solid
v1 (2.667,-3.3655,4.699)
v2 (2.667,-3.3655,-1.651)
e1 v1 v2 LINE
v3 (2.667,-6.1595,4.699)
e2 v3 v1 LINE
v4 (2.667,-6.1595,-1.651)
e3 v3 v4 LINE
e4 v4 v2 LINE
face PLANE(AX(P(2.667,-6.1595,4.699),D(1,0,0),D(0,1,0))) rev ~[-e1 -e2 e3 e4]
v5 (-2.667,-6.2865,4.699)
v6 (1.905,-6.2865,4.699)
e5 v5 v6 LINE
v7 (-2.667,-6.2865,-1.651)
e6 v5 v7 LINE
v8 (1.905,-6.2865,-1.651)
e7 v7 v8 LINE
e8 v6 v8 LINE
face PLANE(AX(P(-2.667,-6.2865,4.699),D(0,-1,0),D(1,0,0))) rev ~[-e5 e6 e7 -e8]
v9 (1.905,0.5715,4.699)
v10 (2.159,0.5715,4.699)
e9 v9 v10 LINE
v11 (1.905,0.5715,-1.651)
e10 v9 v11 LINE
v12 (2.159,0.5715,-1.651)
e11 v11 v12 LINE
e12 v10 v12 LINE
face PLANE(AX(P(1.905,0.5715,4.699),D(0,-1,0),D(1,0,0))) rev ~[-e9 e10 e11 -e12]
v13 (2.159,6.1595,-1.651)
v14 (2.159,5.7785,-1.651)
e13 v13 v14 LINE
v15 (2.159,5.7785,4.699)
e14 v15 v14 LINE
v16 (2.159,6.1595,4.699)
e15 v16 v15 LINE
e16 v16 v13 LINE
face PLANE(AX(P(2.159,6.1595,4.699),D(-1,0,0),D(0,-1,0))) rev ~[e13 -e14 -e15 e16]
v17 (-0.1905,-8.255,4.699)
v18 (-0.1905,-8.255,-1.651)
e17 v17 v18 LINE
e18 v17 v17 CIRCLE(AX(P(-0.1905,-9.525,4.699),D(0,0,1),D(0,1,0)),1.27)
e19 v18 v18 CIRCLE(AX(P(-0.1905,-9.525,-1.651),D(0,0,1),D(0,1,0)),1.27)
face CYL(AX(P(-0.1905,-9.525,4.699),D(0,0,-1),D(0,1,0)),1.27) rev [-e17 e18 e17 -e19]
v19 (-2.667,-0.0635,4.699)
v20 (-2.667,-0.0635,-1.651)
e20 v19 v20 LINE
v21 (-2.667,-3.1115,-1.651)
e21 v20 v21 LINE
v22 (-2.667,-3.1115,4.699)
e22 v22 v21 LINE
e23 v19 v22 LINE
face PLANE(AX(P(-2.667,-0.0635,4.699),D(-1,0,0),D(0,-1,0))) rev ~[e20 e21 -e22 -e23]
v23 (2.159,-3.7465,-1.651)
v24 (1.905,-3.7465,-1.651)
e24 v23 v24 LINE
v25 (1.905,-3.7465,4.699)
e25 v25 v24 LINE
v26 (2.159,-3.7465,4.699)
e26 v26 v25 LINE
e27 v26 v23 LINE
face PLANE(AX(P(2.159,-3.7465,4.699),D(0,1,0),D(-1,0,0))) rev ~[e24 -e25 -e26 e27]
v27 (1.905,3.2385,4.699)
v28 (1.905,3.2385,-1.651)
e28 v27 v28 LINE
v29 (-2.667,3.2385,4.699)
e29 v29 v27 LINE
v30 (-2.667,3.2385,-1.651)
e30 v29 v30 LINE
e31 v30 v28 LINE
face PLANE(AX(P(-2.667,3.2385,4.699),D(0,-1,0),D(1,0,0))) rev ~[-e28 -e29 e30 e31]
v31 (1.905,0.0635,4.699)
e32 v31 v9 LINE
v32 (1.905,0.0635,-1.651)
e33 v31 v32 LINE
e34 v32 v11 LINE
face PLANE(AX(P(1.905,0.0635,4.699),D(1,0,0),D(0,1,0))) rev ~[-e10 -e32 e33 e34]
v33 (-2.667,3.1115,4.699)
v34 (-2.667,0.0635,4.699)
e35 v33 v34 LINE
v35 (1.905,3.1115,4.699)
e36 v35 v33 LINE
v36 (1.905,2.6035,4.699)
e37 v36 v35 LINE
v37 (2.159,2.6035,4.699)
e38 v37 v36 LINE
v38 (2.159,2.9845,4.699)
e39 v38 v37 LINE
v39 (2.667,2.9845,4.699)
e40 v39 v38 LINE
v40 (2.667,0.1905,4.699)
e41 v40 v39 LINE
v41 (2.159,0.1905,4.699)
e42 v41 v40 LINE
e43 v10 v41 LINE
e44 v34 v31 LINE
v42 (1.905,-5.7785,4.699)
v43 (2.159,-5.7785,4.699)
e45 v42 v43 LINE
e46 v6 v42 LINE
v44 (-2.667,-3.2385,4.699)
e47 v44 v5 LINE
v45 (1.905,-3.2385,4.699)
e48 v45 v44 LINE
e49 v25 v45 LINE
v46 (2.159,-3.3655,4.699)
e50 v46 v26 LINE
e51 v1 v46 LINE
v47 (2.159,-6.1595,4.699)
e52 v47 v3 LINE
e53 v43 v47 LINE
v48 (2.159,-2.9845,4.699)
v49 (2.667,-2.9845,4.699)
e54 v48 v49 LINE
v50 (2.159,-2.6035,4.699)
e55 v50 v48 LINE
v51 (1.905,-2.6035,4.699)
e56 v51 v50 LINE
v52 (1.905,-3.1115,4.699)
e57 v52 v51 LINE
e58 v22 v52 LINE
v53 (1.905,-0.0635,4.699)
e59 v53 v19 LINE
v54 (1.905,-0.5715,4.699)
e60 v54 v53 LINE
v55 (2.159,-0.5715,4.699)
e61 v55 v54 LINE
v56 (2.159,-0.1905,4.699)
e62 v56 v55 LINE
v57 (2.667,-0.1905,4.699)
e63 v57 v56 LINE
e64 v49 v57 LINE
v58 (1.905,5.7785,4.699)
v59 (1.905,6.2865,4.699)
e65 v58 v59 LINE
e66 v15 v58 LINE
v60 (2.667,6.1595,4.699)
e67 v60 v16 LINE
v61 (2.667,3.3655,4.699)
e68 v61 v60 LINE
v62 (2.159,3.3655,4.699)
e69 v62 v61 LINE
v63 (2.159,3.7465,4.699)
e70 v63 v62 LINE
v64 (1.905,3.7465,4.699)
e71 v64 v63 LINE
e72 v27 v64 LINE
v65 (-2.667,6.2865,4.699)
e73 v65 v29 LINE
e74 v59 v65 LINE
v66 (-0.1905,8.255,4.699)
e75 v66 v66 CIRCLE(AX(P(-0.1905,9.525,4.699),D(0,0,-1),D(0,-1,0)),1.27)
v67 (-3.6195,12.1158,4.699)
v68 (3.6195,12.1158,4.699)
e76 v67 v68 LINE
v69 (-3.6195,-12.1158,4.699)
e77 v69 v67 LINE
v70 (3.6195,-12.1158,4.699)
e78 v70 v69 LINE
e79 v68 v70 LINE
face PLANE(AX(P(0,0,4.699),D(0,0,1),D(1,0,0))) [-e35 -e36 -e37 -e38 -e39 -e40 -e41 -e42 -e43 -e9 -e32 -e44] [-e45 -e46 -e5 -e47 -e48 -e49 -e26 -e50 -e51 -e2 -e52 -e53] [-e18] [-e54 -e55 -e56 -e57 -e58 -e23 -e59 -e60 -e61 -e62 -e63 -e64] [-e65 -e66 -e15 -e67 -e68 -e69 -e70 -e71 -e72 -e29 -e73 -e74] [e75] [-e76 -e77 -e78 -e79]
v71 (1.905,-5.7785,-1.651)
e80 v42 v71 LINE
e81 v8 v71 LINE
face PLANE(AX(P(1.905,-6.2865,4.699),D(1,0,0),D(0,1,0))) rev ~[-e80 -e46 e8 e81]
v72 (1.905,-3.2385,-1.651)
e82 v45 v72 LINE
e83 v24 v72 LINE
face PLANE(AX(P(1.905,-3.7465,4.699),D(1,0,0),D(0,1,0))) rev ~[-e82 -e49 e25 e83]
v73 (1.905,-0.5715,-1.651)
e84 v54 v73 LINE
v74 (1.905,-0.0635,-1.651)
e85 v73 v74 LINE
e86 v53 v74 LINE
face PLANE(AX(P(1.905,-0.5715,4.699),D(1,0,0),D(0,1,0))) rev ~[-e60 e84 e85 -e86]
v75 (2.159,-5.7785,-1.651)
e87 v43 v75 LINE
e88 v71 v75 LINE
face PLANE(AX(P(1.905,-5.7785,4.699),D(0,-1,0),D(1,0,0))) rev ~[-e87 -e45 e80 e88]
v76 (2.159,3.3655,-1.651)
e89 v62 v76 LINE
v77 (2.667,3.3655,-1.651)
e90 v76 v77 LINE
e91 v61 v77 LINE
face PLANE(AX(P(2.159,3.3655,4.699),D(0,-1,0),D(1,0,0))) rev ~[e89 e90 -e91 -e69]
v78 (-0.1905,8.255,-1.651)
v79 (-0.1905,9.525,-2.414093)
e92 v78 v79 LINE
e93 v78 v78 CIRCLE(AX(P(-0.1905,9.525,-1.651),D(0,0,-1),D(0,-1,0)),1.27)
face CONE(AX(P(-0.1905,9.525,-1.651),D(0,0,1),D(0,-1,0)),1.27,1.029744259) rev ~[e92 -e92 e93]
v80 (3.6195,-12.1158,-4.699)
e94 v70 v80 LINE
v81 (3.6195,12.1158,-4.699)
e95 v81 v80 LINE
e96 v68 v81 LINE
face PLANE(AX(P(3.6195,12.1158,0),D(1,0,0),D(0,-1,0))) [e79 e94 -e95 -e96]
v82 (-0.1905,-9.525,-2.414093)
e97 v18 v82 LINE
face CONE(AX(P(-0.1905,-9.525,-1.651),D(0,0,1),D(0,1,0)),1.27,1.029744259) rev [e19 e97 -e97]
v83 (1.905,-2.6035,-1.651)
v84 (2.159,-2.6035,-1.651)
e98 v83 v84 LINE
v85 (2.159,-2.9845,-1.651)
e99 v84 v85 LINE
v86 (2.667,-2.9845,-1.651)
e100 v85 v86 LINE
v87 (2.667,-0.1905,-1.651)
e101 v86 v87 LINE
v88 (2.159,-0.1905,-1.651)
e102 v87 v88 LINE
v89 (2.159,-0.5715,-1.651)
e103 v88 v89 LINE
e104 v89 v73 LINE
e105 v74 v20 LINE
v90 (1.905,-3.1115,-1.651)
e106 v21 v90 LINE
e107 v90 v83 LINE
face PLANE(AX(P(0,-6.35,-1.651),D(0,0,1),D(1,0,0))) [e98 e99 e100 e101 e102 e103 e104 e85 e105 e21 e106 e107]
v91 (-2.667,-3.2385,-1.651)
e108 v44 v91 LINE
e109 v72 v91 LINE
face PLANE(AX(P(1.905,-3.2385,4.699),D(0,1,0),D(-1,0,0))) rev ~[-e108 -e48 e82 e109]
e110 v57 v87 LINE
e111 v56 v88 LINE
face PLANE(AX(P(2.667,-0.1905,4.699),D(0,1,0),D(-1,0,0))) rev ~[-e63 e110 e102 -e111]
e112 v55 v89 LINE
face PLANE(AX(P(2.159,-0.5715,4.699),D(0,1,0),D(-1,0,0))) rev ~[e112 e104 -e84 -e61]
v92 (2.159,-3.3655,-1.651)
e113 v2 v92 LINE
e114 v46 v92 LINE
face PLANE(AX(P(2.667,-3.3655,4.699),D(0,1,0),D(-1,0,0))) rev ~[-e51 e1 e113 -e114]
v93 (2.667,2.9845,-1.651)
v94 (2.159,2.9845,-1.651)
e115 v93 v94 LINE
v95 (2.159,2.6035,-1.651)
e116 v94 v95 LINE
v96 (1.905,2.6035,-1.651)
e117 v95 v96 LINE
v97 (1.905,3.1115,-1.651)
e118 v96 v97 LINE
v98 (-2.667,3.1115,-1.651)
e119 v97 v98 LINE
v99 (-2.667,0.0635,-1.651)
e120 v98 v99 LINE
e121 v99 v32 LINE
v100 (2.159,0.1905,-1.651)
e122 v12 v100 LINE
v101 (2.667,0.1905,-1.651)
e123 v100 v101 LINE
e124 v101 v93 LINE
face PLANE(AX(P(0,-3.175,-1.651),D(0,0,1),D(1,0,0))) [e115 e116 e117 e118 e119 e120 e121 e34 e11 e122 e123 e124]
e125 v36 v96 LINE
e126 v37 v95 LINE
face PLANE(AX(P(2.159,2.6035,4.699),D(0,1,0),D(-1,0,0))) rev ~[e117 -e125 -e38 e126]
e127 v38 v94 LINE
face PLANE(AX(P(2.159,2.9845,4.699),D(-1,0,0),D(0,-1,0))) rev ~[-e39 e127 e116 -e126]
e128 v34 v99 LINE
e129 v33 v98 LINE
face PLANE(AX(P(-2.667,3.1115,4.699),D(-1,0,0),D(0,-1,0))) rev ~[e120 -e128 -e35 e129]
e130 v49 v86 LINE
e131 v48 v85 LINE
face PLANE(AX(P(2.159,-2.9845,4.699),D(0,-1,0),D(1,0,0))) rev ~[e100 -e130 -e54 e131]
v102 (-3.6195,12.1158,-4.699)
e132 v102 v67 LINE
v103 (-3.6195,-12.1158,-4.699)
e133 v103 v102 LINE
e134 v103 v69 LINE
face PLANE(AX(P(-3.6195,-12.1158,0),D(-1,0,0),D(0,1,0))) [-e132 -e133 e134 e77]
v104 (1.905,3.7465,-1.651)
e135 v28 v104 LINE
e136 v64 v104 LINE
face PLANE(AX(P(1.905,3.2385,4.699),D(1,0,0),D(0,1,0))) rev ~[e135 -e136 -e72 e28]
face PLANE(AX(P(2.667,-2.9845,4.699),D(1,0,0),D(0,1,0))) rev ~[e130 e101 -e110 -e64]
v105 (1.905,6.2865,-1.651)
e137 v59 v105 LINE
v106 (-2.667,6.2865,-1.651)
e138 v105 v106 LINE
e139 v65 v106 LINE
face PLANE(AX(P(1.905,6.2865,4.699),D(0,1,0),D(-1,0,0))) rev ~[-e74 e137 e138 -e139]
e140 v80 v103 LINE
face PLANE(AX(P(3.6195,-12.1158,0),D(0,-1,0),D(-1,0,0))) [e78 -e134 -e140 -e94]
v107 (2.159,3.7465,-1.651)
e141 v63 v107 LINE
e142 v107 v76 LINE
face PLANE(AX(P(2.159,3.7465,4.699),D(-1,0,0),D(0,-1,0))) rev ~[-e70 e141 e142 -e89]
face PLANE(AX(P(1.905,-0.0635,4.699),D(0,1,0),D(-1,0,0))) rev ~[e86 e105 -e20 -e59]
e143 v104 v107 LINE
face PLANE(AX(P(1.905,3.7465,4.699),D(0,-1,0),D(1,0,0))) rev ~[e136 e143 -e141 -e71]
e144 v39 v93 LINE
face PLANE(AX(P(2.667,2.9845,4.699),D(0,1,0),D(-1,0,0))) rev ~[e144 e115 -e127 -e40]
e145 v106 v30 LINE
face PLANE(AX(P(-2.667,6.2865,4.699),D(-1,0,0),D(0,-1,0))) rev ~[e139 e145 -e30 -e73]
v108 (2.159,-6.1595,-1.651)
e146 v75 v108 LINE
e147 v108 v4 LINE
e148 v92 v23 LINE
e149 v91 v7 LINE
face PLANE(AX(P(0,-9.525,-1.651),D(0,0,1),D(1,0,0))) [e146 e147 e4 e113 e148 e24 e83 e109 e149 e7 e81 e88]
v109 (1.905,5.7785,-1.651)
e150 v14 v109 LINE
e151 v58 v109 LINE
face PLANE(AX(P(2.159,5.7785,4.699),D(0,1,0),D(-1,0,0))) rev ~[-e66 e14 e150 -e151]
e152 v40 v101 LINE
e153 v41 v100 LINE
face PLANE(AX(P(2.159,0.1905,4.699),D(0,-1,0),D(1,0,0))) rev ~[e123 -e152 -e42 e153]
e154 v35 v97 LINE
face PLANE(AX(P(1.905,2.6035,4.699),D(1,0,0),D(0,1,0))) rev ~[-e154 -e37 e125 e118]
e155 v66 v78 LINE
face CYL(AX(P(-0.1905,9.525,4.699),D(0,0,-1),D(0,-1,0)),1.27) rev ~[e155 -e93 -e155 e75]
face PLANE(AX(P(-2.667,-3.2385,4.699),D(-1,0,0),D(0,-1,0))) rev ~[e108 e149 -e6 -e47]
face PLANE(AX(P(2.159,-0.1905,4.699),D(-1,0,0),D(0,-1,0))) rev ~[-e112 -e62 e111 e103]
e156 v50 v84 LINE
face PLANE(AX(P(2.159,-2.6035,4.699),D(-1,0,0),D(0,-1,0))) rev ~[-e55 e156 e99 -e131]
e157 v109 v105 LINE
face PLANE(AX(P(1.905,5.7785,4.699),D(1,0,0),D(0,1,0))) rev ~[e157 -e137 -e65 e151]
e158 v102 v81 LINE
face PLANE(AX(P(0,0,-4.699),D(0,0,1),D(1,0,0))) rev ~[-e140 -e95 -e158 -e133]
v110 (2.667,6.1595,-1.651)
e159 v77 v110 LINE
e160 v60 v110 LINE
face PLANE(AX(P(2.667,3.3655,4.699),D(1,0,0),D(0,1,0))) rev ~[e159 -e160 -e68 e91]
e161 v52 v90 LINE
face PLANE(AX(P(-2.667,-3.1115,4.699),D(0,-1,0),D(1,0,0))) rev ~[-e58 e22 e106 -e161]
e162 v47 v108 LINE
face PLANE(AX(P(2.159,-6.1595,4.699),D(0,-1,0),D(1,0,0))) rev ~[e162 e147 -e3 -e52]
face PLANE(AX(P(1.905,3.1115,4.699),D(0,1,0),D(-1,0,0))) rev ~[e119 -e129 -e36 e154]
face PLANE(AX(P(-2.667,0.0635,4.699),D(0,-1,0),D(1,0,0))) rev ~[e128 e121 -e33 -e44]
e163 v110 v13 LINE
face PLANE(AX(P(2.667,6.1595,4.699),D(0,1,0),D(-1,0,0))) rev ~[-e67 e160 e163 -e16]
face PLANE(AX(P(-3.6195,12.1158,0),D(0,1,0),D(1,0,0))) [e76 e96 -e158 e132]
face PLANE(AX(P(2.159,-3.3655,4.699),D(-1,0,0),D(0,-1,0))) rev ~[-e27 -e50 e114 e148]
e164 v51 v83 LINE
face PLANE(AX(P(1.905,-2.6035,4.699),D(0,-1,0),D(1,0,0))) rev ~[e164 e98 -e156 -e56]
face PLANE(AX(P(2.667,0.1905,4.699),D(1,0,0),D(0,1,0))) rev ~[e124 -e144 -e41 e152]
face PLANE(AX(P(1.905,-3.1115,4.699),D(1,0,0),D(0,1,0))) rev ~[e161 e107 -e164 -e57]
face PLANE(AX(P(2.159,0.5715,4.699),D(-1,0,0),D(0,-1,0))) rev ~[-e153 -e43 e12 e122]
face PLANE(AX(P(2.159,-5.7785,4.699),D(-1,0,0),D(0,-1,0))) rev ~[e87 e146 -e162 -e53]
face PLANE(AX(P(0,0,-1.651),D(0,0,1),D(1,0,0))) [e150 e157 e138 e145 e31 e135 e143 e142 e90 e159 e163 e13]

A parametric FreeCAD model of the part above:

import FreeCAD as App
import Part
import Sketcher
Q = App.Units.Quantity

doc = App.newDocument("Part")
body = doc.addObject("PartDesign::Body", "Body")

# Sketch on XY plane
sketch1 = body.newObject("Sketcher::SketchObject", "Sketch")
sketch1.AttachmentSupport = (doc.getObject("XY_Plane"), [""])
sketch1.MapMode = "FlatFace"
sketch1.addGeometry(Part.LineSegment(App.Vector(4, 12, 0), App.Vector(-4, 12, 0)), False)
sketch1.addGeometry(Part.LineSegment(App.Vector(-4, 12, 0), App.Vector(-4, -12, 0)), False)
sketch1.addGeometry(Part.LineSegment(App.Vector(-4, -12, 0), App.Vector(4, -12, 0)), False)
sketch1.addGeometry(Part.LineSegment(App.Vector(4, -12, 0), App.Vector(4, 12, 0)), False)
sketch1.addConstraint(Sketcher.Constraint("Coincident", 0, 2, 1, 1))
sketch1.addConstraint(Sketcher.Constraint("Coincident", 1, 2, 2, 1))
sketch1.addConstraint(Sketcher.Constraint("Coincident", 2, 2, 3, 1))
sketch1.addConstraint(Sketcher.Constraint("Coincident", 3, 2, 0, 1))
sketch1.addConstraint(Sketcher.Constraint("Horizontal", 0))
sketch1.addConstraint(Sketcher.Constraint("Vertical", 1))
sketch1.addConstraint(Sketcher.Constraint("Horizontal", 2))
sketch1.addConstraint(Sketcher.Constraint("Vertical", 3))
sketch1.addConstraint(Sketcher.Constraint("Symmetric", 0, 2, 2, 2, -1, 1))
sketch1.addConstraint(Sketcher.Constraint("DistanceX", 0, 2, 0, 1, Q("0.285 in")))
sketch1.addConstraint(Sketcher.Constraint("DistanceY", 1, 2, 1, 1, Q("0.954 in")))
pad1 = body.newObject("PartDesign::Pad", "Pad")
pad1.Profile = sketch1
pad1.Length = Q("0.37 in")
pad1.Midplane = True

# Sketch on XY plane
sketch2 = body.newObject("Sketcher::SketchObject", "Sketch001")
sketch2.AttachmentSupport = (doc.getObject("XY_Plane"), [""])
sketch2.MapMode = "FlatFace"
sketch2.AttachmentOffset = App.Placement(App.Vector(0, 0, 0.185 * 25.4), App.Rotation())
sketch2.addGeometry(Part.Circle(App.Vector(-0.2, 9.5, 0), App.Vector(0, 0, 1), 1.3), False)
sketch2.addConstraint(Sketcher.Constraint("Diameter", 0, Q("0.1 in")))
sketch2.addConstraint(Sketcher.Constraint("DistanceY", -1, 1, 0, 3, Q("0.375 in")))
sketch2.addConstraint(Sketcher.Constraint("DistanceX", 0, 3, -1, 1, Q("0.0075 in")))
doc.recompute()
hole = body.newObject("PartDesign::Hole", "Hole")
hole.Profile = sketch2
hole.ThreadType = "None"
hole.Diameter = Q("0.1 in")
hole.DepthType = "Dimension"
hole.Depth = Q("0.25 in")
hole.DrillPoint = "Angled"
hole.DrillPointAngle = 118
doc.recompute()

mirrored = body.newObject("PartDesign::Mirrored", "Mirrored")
mirrored.Originals = [hole]
mirrored.MirrorPlane = (doc.getObject("XZ_Plane"), [""])
body.Tip = mirrored

# Sketch on XY plane
sketch3 = body.newObject("Sketcher::SketchObject", "Sketch002")
sketch3.AttachmentSupport = (doc.getObject("XY_Plane"), [""])
sketch3.MapMode = "FlatFace"
sketch3.AttachmentOffset = App.Placement(App.Vector(0, 0, 0.185 * 25.4), App.Rotation())
sketch3.addGeometry(Part.LineSegment(App.Vector(1.91, 6.29, 0), App.Vector(-2.67, 6.29, 0)), False)
sketch3.addGeometry(Part.LineSegment(App.Vector(-2.67, 6.29, 0), App.Vector(-2.67, 3.24, 0)), False)
sketch3.addGeometry(Part.LineSegment(App.Vector(-2.67, 3.24, 0), App.Vector(1.91, 3.24, 0)), False)
sketch3.addGeometry(Part.LineSegment(App.Vector(1.91, 3.24, 0), App.Vector(1.91, 3.75, 0)), False)
sketch3.addGeometry(Part.LineSegment(App.Vector(1.91, 3.75, 0), App.Vector(2.16, 3.75, 0)), False)
sketch3.addGeometry(Part.LineSegment(App.Vector(2.16, 3.75, 0), App.Vector(2.16, 3.37, 0)), False)
sketch3.addGeometry(Part.LineSegment(App.Vector(2.16, 3.37, 0), App.Vector(2.67, 3.37, 0)), False)
sketch3.addGeometry(Part.LineSegment(App.Vector(2.67, 3.37, 0), App.Vector(2.67, 6.16, 0)), False)
sketch3.addGeometry(Part.LineSegment(App.Vector(2.67, 6.16, 0), App.Vector(2.16, 6.16, 0)), False)
sketch3.addGeometry(Part.LineSegment(App.Vector(2.16, 6.16, 0), App.Vector(2.16, 5.78, 0)), False)
sketch3.addGeometry(Part.LineSegment(App.Vector(2.16, 5.78, 0), App.Vector(1.91, 5.78, 0)), False)
sketch3.addGeometry(Part.LineSegment(App.Vector(1.91, 5.78, 0), App.Vector(1.91, 6.29, 0)), False)
sketch3.addConstraint(Sketcher.Constraint("Coincident", 0, 2, 1, 1))
sketch3.addConstraint(Sketcher.Constraint("Coincident", 1, 2, 2, 1))
sketch3.addConstraint(Sketcher.Constraint("Coincident", 2, 2, 3, 1))
sketch3.addConstraint(Sketcher.Constraint("Coincident", 3, 2, 4, 1))
sketch3.addConstraint(Sketcher.Constraint("Coincident", 4, 2, 5, 1))
sketch3.addConstraint(Sketcher.Constraint("Coincident", 5, 2, 6, 1))
sketch3.addConstraint(Sketcher.Constraint("Coincident", 6, 2, 7, 1))
sketch3.addConstraint(Sketcher.Constraint("Coincident", 7, 2, 8, 1))
sketch3.addConstraint(Sketcher.Constraint("Coincident", 8, 2, 9, 1))
sketch3.addConstraint(Sketcher.Constraint("Coincident", 9, 2, 10, 1))
sketch3.addConstraint(Sketcher.Constraint("Coincident", 10, 2, 11, 1))
sketch3.addConstraint(Sketcher.Constraint("Coincident", 11, 2, 0, 1))
sketch3.addConstraint(Sketcher.Constraint("Horizontal", 0))
sketch3.addConstraint(Sketcher.Constraint("Vertical", 1))
sketch3.addConstraint(Sketcher.Constraint("Horizontal", 2))
sketch3.addConstraint(Sketcher.Constraint("Vertical", 3))
sketch3.addConstraint(Sketcher.Constraint("Horizontal", 4))
sketch3.addConstraint(Sketcher.Constraint("Vertical", 5))
sketch3.addConstraint(Sketcher.Constraint("Horizontal", 6))
sketch3.addConstraint(Sketcher.Constraint("Vertical", 7))
sketch3.addConstraint(Sketcher.Constraint("Horizontal", 8))
sketch3.addConstraint(Sketcher.Constraint("Vertical", 9))
sketch3.addConstraint(Sketcher.Constraint("Horizontal", 10))
sketch3.addConstraint(Sketcher.Constraint("Vertical", 11))
sketch3.addConstraint(Sketcher.Constraint("Vertical", 5, 2, 8, 2))
sketch3.addConstraint(Sketcher.Constraint("Vertical", 3, 2, 10, 2))
sketch3.addConstraint(Sketcher.Constraint("Equal", 8, 3))
sketch3.addConstraint(Sketcher.Constraint("Equal", 5, 9))
sketch3.addConstraint(Sketcher.Constraint("Equal", 3, 11))
sketch3.addConstraint(Sketcher.Constraint("DistanceX", 0, 2, 0, 1, Q("0.18 in")))
sketch3.addConstraint(Sketcher.Constraint("DistanceX", 6, 1, 6, 2, Q("0.02 in")))
sketch3.addConstraint(Sketcher.Constraint("DistanceY", 1, 2, 1, 1, Q("0.12 in")))
sketch3.addConstraint(Sketcher.Constraint("DistanceY", 7, 1, 7, 2, Q("0.11 in")))
sketch3.addConstraint(Sketcher.Constraint("DistanceX", 1, 2, 6, 2, Q("0.21 in")))
sketch3.addConstraint(Sketcher.Constraint("DistanceX", 0, 2, -1, 1, Q("0.105 in")))
sketch3.addConstraint(Sketcher.Constraint("DistanceY", -1, 1, 0, 2, Q("0.2475 in")))
pocket1 = body.newObject("PartDesign::Pocket", "Pocket")
pocket1.Profile = sketch3
pocket1.Length = Q("0.25 in")
doc.recompute()

linearpattern = body.newObject("PartDesign::LinearPattern", "LinearPattern")
linearpattern.Originals = [pocket1]
linearpattern.Direction = (doc.getObject("Y_Axis"), [""])
linearpattern.Mode = "offset"
linearpattern.Offset = Q("0.125 in")
linearpattern.Occurrences = 4
linearpattern.Reversed = True
body.Tip = linearpattern

doc.recompute()
